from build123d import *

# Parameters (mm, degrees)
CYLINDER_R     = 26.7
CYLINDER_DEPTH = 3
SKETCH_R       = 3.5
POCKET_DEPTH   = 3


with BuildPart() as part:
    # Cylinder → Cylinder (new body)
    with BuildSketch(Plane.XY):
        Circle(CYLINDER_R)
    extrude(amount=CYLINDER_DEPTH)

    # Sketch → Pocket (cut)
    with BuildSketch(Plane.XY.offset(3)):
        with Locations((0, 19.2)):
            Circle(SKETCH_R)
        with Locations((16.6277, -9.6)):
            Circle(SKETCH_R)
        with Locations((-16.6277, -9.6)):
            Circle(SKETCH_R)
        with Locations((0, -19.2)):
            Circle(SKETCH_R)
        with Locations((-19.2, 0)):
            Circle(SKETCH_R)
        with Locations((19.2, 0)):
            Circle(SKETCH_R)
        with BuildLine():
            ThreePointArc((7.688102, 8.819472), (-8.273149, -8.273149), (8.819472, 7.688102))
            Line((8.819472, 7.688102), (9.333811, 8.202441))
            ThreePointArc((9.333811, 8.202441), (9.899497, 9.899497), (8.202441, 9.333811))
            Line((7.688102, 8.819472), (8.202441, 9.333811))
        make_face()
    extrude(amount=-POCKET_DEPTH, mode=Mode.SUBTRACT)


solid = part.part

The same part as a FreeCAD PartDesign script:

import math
import FreeCAD as App
import Part
import Sketcher
from FreeCAD import Vector
Q = App.Units.Quantity

doc = App.newDocument("Part")
body = doc.addObject("PartDesign::Body", "Body")

sketch1 = body.newObject("Sketcher::SketchObject", "Sketch")
sketch1.AttachmentSupport = (doc.getObject("XY_Plane"), [""])
sketch1.MapMode = "FlatFace"
sketch1.addGeometry(Part.Circle(Vector(0, 0, 0), Vector(0, 0, 1), 27), False)
sketch1.addConstraint(Sketcher.Constraint("Coincident", 0, 3, -1, 1))
sketch1.addConstraint(Sketcher.Constraint("Diameter", 0, Q("53.4 mm")))
pad1 = body.newObject("PartDesign::Pad", "Pad")
pad1.Profile = sketch1
pad1.Length = 3

sketch2 = body.newObject("Sketcher::SketchObject", "Sketch001")
sketch2.AttachmentSupport = (doc.getObject("XY_Plane"), [""])
sketch2.MapMode = "FlatFace"
sketch2.AttachmentOffset = App.Placement(Vector(0, 0, 3), App.Rotation())
sketch2.addGeometry(Part.Circle(Vector(0, 19.2, 0), Vector(0, 0, 1), 3.5), False)
sketch2.addGeometry(Part.Circle(Vector(16.6, -9.6, 0), Vector(0, 0, 1), 3.5), False)
sketch2.addGeometry(Part.Circle(Vector(-16.6, -9.6, 0), Vector(0, 0, 1), 3.5), False)
sketch2.addGeometry(Part.Circle(Vector(0, -19.2, 0), Vector(0, 0, 1), 3.5), False)
sketch2.addGeometry(Part.Circle(Vector(-19.2, 0, 0), Vector(0, 0, 1), 3.5), False)
sketch2.addGeometry(Part.Circle(Vector(19.2, 0, 0), Vector(0, 0, 1), 3.5), False)
sketch2.addGeometry(Part.ArcOfCircle(Part.Circle(Vector(0, 0, 0), Vector(0, 0, 1), 11.7), math.radians(49), math.radians(401)), False)
sketch2.addGeometry(Part.LineSegment(Vector(8.8, 7.7, 0), Vector(9.3, 8.2, 0)), False)
sketch2.addGeometry(Part.ArcOfCircle(Part.Circle(Vector(9.2, 9.2, 0), Vector(0, 0, 1), 1), math.radians(-82), math.radians(172)), False)
sketch2.addGeometry(Part.LineSegment(Vector(8.2, 9.3, 0), Vector(7.7, 8.8, 0)), False)
sketch2.addConstraint(Sketcher.Constraint("Coincident", 6, 2, 7, 1))
sketch2.addConstraint(Sketcher.Constraint("Coincident", 7, 2, 8, 1))
sketch2.addConstraint(Sketcher.Constraint("Coincident", 8, 2, 9, 1))
sketch2.addConstraint(Sketcher.Constraint("Coincident", 9, 2, 6, 1))
sketch2.addConstraint(Sketcher.Constraint("Coincident", 6, 3, -1, 1))
sketch2.addConstraint(Sketcher.Constraint("Equal", 0, 1))
sketch2.addConstraint(Sketcher.Constraint("Equal", 1, 2))
sketch2.addConstraint(Sketcher.Constraint("Equal", 2, 3))
sketch2.addConstraint(Sketcher.Constraint("Equal", 3, 4))
sketch2.addConstraint(Sketcher.Constraint("Equal", 4, 5))
sketch2.addConstraint(Sketcher.Constraint("Symmetric", 0, 3, 3, 3, -1, 1))
sketch2.addConstraint(Sketcher.Constraint("Symmetric", 4, 3, 5, 3, -1, 1))
sketch2.addConstraint(Sketcher.Constraint("Symmetric", 1, 3, 2, 3, -2))
sketch2.addConstraint(Sketcher.Constraint("PointOnObject", 0, 3, -2))
sketch2.addConstraint(Sketcher.Constraint("PointOnObject", 4, 3, -1))
sketch2.addConstraint(Sketcher.Constraint("Parallel", 7, 9))
sketch2.addConstraint(Sketcher.Constraint("Equal", 7, 9))
sketch2.addConstraint(Sketcher.Constraint("Diameter", 0, Q("7 mm")))
sketch2.addConstraint(Sketcher.Constraint("Radius", 8, Q("1 mm")))
sketch2.addConstraint(Sketcher.Constraint("Radius", 6, Q("11.7 mm")))
sketch2.addConstraint(Sketcher.Constraint("Angle", 7, Q("45 deg")))
sketch2.addConstraint(Sketcher.Constraint("DistanceY", -1, 1, 0, 3, Q("19.2 mm")))
sketch2.addConstraint(Sketcher.Constraint("DistanceY", 1, 3, -1, 1, Q("9.6 mm")))
sketch2.addConstraint(Sketcher.Constraint("DistanceX", 4, 3, -1, 1, Q("19.2 mm")))
sketch2.addConstraint(Sketcher.Constraint("DistanceX", -1, 1, 1, 3, Q("16.6277 mm")))
sketch2.addConstraint(Sketcher.Constraint("DistanceX", -1, 1, 9, 2, Q("7.688102 mm")))
sketch2.addConstraint(Sketcher.Constraint("DistanceY", 6, 3, 6, 2, Q("7.688102 mm")))
sketch2.addConstraint(Sketcher.Constraint("DistanceX", -1, 1, 8, 3, Q("9.19239 mm")))
pocket1 = body.newObject("PartDesign::Pocket", "Pocket")
pocket1.Profile = sketch2
pocket1.Length = 3

doc.recompute()
